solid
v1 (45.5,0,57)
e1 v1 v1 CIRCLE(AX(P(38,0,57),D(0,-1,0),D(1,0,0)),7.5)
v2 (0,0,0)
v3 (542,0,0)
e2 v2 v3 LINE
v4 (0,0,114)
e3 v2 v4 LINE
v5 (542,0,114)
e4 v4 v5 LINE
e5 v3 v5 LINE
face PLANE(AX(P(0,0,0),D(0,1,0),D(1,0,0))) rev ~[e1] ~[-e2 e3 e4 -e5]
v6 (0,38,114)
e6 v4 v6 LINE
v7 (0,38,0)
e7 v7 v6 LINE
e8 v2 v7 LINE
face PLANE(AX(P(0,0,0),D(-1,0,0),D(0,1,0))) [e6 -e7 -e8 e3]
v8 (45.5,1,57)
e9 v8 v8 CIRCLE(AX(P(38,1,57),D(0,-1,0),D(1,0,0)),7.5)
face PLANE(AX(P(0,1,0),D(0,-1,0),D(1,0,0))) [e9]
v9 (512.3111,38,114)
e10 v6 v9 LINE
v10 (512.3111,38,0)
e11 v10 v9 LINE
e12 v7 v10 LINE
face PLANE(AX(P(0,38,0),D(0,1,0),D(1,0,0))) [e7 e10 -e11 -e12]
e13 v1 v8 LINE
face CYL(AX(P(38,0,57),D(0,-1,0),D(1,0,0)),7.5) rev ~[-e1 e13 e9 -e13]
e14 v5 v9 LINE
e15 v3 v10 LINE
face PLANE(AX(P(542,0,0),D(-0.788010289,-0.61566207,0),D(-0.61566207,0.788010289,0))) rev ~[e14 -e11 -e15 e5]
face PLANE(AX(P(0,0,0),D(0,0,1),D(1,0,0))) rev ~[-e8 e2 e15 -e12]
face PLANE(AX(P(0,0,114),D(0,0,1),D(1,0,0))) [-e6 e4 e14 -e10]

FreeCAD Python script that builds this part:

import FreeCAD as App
import Part
import Sketcher
Q = App.Units.Quantity

doc = App.newDocument("Part")
params = doc.addObject("Spreadsheet::Sheet", "Params")
for row, (alias, value) in enumerate([
    ("sketch1_width", "542 mm"),
    ("sketch1_height", "38 mm"),
    ("pad1_length", "114 mm"),
    ("sketch2_diameter", "15 mm"),
    ("pocket1_length", "1 mm"),
], start=1):
    params.set(f"A{row}", alias)
    params.set(f"B{row}", "=" + value)
    params.setAlias(f"B{row}", alias)

body = doc.addObject("PartDesign::Body", "Body")

# Sketch on XY plane
sketch1 = body.newObject("Sketcher::SketchObject", "Sketch")
sketch1.AttachmentSupport = (doc.getObject("XY_Plane"), [""])
sketch1.MapMode = "FlatFace"
sketch1.addGeometry([
    Part.LineSegment(App.Vector(0, 38, 0), App.Vector(0, 0, 0)),
    Part.LineSegment(App.Vector(0, 0, 0), App.Vector(542, 0, 0)),
    Part.LineSegment(App.Vector(542, 0, 0), App.Vector(512.3111, 38, 0)),
    Part.LineSegment(App.Vector(512.3111, 38, 0), App.Vector(0, 38, 0)),
], False)
sketch1.addConstraint([
    Sketcher.Constraint("Coincident", 0, 2, 1, 1),
    Sketcher.Constraint("Coincident", 1, 2, 2, 1),
    Sketcher.Constraint("Coincident", 2, 2, 3, 1),
    Sketcher.Constraint("Coincident", 3, 2, 0, 1),
    Sketcher.Constraint("Vertical", 0),
    Sketcher.Constraint("Horizontal", 1),
    Sketcher.Constraint("Horizontal", 3),
    Sketcher.Constraint("Coincident", 0, 2, -1, 1),
    Sketcher.Constraint("DistanceX", 1, 1, 1, 2, 542.0),
    Sketcher.Constraint("DistanceY", 0, 2, 0, 1, 38.0),
    Sketcher.Constraint("Angle", 2, Q("128 deg")),
])
sketch1.setExpression("Constraints[8]", "Params.sketch1_width")
sketch1.setExpression("Constraints[9]", "Params.sketch1_height")
pad1 = body.newObject("PartDesign::Pad", "Pad")
pad1.Profile = sketch1
pad1.setExpression("Length", "Params.pad1_length")

# Sketch on XZ plane
sketch2 = body.newObject("Sketcher::SketchObject", "Sketch001")
sketch2.AttachmentSupport = (doc.getObject("XZ_Plane"), [""])
sketch2.MapMode = "FlatFace"
sketch2.addGeometry(Part.Circle(App.Vector(38, 57, 0), App.Vector(0, 0, 1), 7.5), False)
sketch2.addConstraint([
    Sketcher.Constraint("Diameter", 0, 15.0),
    Sketcher.Constraint("DistanceX", -1, 1, 0, 3, 38.0),
    Sketcher.Constraint("DistanceY", -1, 1, 0, 3, 57.0),
])
sketch2.setExpression("Constraints[0]", "Params.sketch2_diameter")
pocket1 = body.newObject("PartDesign::Pocket", "Pocket")
pocket1.Profile = sketch2
pocket1.setExpression("Length", "Params.pocket1_length")

doc.recompute()
